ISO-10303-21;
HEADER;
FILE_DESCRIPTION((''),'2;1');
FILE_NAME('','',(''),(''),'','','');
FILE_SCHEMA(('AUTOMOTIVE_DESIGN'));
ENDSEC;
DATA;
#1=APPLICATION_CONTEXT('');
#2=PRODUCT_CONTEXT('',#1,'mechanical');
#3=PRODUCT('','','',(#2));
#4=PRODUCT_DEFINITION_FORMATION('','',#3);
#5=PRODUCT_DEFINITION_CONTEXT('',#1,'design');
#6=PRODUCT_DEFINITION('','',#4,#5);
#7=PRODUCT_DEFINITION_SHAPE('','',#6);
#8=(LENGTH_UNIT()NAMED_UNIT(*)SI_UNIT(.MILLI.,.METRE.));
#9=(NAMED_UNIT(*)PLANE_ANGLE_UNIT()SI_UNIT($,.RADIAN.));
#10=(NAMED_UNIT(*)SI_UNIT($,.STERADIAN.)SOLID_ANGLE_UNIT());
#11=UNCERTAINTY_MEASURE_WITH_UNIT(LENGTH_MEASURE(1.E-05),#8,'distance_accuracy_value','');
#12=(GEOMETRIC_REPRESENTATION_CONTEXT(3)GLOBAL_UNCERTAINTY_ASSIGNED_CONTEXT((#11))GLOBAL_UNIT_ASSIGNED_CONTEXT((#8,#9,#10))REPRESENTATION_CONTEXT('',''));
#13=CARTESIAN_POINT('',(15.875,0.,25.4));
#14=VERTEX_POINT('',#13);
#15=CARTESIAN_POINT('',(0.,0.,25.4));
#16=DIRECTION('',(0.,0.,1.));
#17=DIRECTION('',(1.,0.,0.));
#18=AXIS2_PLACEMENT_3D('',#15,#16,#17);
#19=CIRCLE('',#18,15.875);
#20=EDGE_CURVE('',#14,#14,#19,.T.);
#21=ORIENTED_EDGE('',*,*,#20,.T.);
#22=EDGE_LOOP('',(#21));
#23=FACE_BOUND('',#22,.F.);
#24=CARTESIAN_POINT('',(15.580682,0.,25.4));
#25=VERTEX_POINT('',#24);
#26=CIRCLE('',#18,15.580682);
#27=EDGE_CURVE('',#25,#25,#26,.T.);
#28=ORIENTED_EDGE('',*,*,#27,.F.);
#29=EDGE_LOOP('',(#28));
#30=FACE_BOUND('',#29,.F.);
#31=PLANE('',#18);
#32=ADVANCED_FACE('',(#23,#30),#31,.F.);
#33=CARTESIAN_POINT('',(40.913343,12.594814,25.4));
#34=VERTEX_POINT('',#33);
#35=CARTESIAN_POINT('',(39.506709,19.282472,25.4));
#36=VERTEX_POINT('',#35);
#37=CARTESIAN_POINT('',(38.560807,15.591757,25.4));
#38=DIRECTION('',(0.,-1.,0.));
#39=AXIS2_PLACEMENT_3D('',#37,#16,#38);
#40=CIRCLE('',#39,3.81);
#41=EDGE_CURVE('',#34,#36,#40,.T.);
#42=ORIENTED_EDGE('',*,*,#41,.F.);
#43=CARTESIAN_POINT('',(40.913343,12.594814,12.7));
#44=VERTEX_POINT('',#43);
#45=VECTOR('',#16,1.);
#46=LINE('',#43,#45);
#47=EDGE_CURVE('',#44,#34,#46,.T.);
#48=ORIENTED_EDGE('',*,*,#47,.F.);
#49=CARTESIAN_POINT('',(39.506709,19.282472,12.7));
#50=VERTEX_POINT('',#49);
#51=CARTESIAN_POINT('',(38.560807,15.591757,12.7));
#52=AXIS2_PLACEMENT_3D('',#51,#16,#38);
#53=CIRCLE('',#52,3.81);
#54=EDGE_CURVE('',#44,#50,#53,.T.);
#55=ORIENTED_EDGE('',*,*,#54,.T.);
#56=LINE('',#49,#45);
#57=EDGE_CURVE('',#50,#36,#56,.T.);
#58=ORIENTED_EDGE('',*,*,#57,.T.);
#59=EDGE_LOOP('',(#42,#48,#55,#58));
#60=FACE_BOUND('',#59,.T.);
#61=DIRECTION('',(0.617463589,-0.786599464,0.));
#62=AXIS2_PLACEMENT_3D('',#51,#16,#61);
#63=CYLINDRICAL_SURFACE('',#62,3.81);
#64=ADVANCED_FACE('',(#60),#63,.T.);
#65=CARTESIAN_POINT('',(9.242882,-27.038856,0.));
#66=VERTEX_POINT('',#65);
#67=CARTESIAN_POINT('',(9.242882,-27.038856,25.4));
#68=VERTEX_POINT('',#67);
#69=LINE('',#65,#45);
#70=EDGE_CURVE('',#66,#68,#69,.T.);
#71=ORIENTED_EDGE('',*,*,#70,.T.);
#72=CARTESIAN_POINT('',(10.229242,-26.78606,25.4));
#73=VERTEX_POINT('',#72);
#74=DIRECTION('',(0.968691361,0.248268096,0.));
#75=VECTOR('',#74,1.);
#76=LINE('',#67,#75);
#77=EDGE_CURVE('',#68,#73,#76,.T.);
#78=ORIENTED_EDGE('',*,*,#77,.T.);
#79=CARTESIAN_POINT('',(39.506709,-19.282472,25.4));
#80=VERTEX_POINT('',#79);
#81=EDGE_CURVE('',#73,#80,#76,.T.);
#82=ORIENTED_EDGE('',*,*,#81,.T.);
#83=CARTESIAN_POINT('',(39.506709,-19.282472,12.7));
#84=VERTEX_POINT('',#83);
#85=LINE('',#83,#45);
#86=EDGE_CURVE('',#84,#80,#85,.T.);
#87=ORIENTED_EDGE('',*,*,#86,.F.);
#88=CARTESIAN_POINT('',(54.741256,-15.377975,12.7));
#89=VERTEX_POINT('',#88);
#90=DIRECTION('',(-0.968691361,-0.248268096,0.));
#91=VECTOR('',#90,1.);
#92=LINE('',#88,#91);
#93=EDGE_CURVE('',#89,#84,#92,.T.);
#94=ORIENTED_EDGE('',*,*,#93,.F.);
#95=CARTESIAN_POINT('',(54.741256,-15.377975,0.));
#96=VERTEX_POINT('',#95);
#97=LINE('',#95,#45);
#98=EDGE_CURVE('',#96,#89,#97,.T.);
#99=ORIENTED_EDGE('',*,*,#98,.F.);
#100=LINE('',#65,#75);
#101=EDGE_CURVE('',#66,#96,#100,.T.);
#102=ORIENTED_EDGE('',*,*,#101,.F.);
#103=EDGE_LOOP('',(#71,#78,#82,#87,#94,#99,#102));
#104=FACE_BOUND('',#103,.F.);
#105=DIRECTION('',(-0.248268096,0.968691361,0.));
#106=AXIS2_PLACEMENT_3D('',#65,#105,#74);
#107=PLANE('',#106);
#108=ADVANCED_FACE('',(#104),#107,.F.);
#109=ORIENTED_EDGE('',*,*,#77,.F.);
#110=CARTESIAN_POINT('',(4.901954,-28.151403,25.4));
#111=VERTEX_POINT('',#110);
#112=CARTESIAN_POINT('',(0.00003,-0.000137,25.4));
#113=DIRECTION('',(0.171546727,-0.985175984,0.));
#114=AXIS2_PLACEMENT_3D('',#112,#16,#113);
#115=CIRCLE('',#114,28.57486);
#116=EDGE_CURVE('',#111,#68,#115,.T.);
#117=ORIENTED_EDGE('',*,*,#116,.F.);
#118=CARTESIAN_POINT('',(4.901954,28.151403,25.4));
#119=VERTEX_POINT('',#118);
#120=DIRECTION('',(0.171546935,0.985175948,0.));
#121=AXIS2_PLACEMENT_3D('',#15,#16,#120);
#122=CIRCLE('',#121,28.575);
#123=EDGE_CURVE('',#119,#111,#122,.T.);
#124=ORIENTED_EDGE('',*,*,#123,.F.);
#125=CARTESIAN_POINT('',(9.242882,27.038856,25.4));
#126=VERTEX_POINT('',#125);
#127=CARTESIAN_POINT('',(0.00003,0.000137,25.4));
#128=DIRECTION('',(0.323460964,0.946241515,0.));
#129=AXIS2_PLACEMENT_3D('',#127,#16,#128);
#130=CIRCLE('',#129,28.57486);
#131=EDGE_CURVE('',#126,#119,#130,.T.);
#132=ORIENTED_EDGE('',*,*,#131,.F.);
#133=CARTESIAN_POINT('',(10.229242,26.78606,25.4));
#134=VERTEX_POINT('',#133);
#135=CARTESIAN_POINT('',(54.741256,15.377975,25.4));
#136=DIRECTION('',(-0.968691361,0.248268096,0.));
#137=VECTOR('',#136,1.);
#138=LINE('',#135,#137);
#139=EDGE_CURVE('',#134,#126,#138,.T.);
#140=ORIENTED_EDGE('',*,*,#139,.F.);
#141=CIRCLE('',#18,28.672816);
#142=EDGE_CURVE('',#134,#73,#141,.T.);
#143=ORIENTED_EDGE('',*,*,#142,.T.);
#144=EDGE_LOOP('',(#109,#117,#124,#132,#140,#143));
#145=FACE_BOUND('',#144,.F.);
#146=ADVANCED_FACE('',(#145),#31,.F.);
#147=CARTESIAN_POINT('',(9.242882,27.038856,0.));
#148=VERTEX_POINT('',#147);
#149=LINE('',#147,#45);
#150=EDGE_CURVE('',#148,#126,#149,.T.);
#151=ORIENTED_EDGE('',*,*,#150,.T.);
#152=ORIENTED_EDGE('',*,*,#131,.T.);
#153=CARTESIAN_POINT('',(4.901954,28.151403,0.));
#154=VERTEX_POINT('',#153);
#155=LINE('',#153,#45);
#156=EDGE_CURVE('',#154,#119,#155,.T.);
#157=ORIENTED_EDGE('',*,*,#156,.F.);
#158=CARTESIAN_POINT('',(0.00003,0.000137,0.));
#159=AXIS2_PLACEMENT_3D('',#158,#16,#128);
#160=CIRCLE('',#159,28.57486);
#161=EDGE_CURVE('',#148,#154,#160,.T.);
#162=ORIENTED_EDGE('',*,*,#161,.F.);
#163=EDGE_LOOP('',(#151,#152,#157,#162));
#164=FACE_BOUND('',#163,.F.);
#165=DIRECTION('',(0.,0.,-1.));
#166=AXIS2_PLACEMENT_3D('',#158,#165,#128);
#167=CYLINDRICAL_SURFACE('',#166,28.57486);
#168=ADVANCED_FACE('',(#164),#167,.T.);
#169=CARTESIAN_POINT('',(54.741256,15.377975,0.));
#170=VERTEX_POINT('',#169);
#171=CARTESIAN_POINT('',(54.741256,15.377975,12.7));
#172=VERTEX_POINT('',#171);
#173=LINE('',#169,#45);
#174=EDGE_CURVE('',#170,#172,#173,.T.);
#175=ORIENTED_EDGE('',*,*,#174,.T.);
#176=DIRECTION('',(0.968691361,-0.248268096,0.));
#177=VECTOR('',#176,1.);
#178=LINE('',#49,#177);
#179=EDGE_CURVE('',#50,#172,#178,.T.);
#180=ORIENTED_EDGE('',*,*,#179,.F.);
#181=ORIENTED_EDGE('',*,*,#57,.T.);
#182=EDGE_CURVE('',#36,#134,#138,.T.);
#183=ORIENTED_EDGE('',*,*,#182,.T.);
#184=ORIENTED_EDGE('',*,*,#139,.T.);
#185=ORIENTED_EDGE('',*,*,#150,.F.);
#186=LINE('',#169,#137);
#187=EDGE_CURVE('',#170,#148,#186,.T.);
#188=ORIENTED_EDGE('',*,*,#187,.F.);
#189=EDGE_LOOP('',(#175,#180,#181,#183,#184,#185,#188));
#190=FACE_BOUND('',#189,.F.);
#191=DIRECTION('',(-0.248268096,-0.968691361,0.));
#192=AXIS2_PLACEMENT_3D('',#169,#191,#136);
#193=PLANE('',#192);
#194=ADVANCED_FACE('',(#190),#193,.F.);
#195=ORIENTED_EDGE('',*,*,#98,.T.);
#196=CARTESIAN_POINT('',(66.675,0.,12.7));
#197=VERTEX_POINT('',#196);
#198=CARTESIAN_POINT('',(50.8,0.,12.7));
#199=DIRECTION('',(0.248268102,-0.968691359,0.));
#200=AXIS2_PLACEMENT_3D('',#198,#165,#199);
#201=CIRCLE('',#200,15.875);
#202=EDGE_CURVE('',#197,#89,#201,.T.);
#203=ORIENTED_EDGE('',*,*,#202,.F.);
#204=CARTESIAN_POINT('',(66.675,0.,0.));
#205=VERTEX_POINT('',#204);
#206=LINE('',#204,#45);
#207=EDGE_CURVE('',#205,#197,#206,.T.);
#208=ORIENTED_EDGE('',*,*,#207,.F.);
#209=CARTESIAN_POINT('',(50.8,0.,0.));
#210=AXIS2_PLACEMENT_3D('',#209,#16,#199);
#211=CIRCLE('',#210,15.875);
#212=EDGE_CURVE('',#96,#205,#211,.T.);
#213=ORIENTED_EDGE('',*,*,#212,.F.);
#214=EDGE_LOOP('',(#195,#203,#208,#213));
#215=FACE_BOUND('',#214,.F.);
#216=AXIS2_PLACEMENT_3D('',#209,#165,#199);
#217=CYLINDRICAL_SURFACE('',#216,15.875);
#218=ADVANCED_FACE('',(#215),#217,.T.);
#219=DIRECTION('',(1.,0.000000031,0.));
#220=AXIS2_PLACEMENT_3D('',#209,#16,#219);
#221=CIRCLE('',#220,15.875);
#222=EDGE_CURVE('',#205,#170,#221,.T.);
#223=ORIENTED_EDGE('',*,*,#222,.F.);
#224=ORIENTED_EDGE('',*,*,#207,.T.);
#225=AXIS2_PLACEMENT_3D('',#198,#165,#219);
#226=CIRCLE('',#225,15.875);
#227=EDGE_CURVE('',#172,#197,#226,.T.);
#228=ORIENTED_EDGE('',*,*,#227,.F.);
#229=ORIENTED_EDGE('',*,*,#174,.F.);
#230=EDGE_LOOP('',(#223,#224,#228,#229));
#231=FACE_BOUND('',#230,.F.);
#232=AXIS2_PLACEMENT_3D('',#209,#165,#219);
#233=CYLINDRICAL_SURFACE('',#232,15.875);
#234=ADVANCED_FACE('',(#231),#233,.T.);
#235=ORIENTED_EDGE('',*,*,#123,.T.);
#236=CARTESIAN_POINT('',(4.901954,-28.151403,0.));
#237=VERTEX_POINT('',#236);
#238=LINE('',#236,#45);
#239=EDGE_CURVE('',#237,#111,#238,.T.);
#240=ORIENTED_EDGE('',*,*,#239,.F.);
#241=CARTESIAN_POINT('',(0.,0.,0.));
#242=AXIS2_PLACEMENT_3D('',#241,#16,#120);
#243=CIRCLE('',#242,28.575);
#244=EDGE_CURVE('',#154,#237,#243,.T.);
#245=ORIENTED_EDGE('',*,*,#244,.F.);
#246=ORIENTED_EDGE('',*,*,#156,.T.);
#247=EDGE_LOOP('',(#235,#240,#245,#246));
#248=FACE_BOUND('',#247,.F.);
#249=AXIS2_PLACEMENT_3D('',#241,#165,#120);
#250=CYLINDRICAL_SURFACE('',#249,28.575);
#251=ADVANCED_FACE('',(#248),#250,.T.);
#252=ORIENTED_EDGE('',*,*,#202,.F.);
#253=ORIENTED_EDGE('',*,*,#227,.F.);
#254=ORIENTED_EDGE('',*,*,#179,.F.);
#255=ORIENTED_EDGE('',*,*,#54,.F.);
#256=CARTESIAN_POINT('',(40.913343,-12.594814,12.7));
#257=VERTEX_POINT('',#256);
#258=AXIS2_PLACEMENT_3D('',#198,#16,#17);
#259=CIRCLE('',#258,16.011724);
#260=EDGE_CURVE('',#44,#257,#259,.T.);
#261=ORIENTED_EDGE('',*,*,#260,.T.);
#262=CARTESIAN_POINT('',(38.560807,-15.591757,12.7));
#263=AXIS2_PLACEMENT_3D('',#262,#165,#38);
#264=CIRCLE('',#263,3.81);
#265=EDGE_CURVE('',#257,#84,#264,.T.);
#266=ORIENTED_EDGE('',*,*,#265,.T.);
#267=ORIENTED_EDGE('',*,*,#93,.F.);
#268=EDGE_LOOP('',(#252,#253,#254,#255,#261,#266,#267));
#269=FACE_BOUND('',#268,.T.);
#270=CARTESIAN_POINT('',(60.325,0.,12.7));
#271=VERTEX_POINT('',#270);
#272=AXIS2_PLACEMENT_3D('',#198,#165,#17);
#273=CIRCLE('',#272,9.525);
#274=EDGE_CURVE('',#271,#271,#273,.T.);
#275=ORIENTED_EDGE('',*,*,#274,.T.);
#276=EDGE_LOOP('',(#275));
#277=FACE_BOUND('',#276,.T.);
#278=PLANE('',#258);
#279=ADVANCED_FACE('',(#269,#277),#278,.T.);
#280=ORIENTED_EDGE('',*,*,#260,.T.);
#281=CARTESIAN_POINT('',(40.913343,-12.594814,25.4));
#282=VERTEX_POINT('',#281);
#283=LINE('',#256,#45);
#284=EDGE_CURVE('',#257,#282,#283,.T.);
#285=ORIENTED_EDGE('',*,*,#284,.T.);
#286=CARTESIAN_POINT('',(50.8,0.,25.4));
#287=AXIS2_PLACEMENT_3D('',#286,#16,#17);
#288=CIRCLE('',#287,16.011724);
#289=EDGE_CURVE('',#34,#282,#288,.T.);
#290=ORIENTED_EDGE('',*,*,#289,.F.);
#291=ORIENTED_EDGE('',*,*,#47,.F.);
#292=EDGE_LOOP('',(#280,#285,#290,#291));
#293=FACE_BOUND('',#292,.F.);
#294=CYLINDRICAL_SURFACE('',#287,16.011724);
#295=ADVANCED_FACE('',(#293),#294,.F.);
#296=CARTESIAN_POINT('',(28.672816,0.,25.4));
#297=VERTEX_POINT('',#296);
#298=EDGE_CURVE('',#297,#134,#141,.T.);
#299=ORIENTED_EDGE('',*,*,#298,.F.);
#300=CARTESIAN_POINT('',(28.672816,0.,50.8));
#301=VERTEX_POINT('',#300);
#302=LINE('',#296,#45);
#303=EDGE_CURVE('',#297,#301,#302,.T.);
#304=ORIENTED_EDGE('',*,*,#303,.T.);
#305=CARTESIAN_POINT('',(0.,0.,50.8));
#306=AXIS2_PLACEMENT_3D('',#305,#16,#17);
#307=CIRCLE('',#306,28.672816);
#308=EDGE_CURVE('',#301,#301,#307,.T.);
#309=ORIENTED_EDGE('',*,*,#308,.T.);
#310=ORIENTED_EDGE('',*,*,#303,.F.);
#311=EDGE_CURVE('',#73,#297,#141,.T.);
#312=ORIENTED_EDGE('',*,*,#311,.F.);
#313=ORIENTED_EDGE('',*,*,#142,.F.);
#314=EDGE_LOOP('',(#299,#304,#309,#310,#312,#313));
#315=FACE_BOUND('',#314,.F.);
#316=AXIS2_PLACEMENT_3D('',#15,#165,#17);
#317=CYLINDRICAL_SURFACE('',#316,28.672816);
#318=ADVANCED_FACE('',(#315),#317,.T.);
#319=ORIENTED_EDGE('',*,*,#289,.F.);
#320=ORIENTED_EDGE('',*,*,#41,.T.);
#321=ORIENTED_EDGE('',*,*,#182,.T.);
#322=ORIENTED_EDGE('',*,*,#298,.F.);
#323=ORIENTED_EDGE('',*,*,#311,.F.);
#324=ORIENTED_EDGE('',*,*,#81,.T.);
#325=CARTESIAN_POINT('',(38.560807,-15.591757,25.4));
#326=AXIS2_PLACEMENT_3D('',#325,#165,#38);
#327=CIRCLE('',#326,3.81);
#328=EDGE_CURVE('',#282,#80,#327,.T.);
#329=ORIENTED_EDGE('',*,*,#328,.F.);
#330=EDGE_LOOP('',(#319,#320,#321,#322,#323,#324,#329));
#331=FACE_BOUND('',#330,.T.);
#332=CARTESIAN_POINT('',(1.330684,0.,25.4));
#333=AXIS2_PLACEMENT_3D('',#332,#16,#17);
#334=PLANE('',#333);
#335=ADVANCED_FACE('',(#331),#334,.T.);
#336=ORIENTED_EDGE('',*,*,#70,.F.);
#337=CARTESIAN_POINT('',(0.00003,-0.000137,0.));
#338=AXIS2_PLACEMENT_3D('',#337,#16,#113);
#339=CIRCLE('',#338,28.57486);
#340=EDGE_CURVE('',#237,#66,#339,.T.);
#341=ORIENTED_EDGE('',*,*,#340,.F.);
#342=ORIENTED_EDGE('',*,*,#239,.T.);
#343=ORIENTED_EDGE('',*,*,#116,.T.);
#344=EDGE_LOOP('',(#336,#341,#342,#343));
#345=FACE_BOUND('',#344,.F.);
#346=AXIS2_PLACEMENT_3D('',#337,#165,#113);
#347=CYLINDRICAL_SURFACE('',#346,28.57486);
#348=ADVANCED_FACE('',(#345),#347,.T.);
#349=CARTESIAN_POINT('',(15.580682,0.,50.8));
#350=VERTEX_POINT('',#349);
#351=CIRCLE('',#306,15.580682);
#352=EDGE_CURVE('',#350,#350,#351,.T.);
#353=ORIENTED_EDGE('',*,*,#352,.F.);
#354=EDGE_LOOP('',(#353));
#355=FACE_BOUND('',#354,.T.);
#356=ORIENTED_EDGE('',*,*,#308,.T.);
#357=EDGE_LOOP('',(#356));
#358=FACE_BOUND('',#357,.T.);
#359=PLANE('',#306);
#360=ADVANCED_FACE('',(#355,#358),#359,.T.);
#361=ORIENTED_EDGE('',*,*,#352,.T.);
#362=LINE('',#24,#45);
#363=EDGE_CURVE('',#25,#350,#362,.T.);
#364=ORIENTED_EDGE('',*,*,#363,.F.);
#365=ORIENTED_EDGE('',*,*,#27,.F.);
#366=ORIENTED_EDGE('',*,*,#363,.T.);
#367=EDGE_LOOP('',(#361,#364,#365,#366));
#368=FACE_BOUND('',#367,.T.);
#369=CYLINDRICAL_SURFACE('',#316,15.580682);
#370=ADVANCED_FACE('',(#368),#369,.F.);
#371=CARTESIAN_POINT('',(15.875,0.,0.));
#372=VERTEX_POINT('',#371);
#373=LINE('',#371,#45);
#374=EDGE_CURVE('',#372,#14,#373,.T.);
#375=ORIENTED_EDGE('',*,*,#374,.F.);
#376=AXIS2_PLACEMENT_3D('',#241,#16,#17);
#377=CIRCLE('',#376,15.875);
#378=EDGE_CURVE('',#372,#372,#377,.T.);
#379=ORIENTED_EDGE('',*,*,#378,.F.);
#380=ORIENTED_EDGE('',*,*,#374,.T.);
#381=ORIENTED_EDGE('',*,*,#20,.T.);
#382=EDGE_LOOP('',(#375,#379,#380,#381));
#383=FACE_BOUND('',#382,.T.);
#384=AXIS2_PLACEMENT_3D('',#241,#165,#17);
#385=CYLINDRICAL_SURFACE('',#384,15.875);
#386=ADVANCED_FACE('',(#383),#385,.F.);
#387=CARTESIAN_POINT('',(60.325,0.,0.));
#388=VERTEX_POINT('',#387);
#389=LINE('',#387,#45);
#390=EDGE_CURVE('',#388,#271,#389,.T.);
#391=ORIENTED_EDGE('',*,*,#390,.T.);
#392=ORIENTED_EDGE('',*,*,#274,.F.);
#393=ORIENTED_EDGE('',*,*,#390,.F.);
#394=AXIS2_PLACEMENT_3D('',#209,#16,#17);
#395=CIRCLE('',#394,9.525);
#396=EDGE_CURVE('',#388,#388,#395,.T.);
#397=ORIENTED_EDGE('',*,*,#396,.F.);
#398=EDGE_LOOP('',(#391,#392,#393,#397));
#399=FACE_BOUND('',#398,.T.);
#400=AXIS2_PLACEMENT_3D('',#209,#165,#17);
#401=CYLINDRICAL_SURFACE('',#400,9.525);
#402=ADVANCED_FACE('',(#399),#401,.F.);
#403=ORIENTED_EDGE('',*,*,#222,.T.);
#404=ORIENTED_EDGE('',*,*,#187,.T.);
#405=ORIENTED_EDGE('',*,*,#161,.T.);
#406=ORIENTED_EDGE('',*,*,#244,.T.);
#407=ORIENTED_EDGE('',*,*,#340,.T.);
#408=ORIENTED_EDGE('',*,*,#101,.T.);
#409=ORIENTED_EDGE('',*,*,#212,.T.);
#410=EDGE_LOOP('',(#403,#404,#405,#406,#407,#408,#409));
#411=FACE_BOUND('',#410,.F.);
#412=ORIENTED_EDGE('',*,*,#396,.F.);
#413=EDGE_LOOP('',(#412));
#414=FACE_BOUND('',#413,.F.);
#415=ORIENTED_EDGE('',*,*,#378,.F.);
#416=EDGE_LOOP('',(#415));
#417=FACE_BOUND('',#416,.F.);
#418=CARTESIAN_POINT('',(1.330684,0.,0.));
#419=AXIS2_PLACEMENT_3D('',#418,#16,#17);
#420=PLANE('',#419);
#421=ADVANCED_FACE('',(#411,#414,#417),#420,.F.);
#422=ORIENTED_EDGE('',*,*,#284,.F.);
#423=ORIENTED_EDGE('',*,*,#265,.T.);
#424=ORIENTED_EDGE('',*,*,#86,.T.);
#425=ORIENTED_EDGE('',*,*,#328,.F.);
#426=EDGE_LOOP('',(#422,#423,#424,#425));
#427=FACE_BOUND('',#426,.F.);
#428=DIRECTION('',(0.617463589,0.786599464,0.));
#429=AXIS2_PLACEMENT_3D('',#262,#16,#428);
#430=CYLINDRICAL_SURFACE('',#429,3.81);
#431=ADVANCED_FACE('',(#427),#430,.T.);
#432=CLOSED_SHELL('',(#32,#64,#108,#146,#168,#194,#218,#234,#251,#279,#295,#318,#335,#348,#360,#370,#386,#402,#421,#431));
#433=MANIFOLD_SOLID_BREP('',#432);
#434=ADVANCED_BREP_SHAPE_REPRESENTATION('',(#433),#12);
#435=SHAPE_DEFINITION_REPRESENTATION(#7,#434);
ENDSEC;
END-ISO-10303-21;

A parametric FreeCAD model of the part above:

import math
import FreeCAD as App
import Part
import Sketcher
Q = App.Units.Quantity


def edges_at(feature, points):
    """Names of the edges that pass closest to the given points."""
    edges = feature.Shape.Edges
    near = lambda p: min(range(len(edges)), key=lambda i: edges[i].distToShape(Part.Vertex(*p))[0])
    return sorted({f"Edge{near(p) + 1}" for p in points})

doc = App.newDocument("Part")
body = doc.addObject("PartDesign::Body", "Body")

sketch1 = body.newObject("Sketcher::SketchObject", "Sketch")
sketch1.AttachmentSupport = (doc.getObject("XY_Plane"), [""])
sketch1.MapMode = "FlatFace"
sketch1.addGeometry(Part.ArcOfCircle(Part.Circle(App.Vector(0, 0, 0), App.Vector(0, 0, 1), 28.6), math.radians(71.13), math.radians(80.12)), False)
sketch1.addGeometry(Part.ArcOfCircle(Part.Circle(App.Vector(0, 0, 0), App.Vector(0, 0, 1), 28.6), math.radians(80), math.radians(280)), False)
sketch1.addGeometry(Part.ArcOfCircle(Part.Circle(App.Vector(0, 0, 0), App.Vector(0, 0, 1), 28.6), math.radians(-80.12), math.radians(-71.13)), False)
sketch1.addGeometry(Part.LineSegment(App.Vector(9.2, -27, 0), App.Vector(54.7, -15.4, 0)), False)
sketch1.addGeometry(Part.ArcOfCircle(Part.Circle(App.Vector(50.8, 0, 0), App.Vector(0, 0, 1), 15.9), math.radians(-76), math.radians(0)), False)
sketch1.addGeometry(Part.ArcOfCircle(Part.Circle(App.Vector(50.8, 0, 0), App.Vector(0, 0, 1), 15.9), math.radians(0), math.radians(76)), False)
sketch1.addGeometry(Part.LineSegment(App.Vector(54.7, 15.4, 0), App.Vector(9.2, 27, 0)), False)
sketch1.addGeometry(Part.Circle(App.Vector(0, 0, 0), App.Vector(0, 0, 1), 15.9), False)
sketch1.addGeometry(Part.Circle(App.Vector(50.8, 0, 0), App.Vector(0, 0, 1), 9.5), False)
sketch1.addConstraint(Sketcher.Constraint("Tangent", 0, 2, 1, 1))
sketch1.addConstraint(Sketcher.Constraint("Tangent", 1, 2, 2, 1))
sketch1.addConstraint(Sketcher.Constraint("Coincident", 2, 2, 3, 1))
sketch1.addConstraint(Sketcher.Constraint("Tangent", 3, 2, 4, 1))
sketch1.addConstraint(Sketcher.Constraint("Tangent", 4, 2, 5, 1))
sketch1.addConstraint(Sketcher.Constraint("Tangent", 5, 2, 6, 1))
sketch1.addConstraint(Sketcher.Constraint("Coincident", 6, 2, 0, 1))
sketch1.addConstraint(Sketcher.Constraint("Coincident", 1, 3, -1, 1))
sketch1.addConstraint(Sketcher.Constraint("Coincident", 7, 3, -1, 1))
sketch1.addConstraint(Sketcher.Constraint("Coincident", 8, 3, 4, 3))
sketch1.addConstraint(Sketcher.Constraint("Equal", 0, 2))
sketch1.addConstraint(Sketcher.Constraint("Equal", 4, 5))
sketch1.addConstraint(Sketcher.Constraint("Equal", 5, 7))
sketch1.addConstraint(Sketcher.Constraint("Symmetric", 3, 2, 5, 2, -1))
sketch1.addConstraint(Sketcher.Constraint("PointOnObject", 4, 2, -1))
sketch1.addConstraint(Sketcher.Constraint("Vertical", 0, 2, 1, 2))
sketch1.addConstraint(Sketcher.Constraint("Diameter", 7, Q("1.25 in")))
sketch1.addConstraint(Sketcher.Constraint("Diameter", 8, Q("0.75 in")))
sketch1.addConstraint(Sketcher.Constraint("DistanceX", -1, 1, 4, 3, Q("2 in")))
sketch1.addConstraint(Sketcher.Constraint("Radius", 1, Q("1.125 in")))
sketch1.addConstraint(Sketcher.Constraint("Radius", 0, 28.57486))
sketch1.addConstraint(Sketcher.Constraint("DistanceX", -1, 1, 2, 2, 9.242882))
sketch1.addConstraint(Sketcher.Constraint("DistanceY", 2, 3, 0, 2, 28.15154))
pad1 = body.newObject("PartDesign::Pad", "Pad")
pad1.Profile = sketch1
pad1.Length = Q("1 in")

sketch2 = body.newObject("Sketcher::SketchObject", "Sketch001")
sketch2.AttachmentSupport = (doc.getObject("XY_Plane"), [""])
sketch2.MapMode = "FlatFace"
sketch2.AttachmentOffset = App.Placement(App.Vector(0, 0, 1 * 25.4), App.Rotation())
sketch2.addGeometry(Part.Circle(App.Vector(0, 0, 0), App.Vector(0, 0, 1), 29), False)
sketch2.addGeometry(Part.Circle(App.Vector(0, 0, 0), App.Vector(0, 0, 1), 16), False)
sketch2.addConstraint(Sketcher.Constraint("Coincident", 0, 3, -1, 1))
sketch2.addConstraint(Sketcher.Constraint("Coincident", 1, 3, -1, 1))
sketch2.addConstraint(Sketcher.Constraint("Diameter", 0, 57.345632))
sketch2.addConstraint(Sketcher.Constraint("Diameter", 1, 31.161364))
pad2 = body.newObject("PartDesign::Pad", "Pad001")
pad2.Profile = sketch2
pad2.Length = Q("1 in")

sketch3 = body.newObject("Sketcher::SketchObject", "Sketch002")
sketch3.AttachmentSupport = (doc.getObject("XY_Plane"), [""])
sketch3.MapMode = "FlatFace"
sketch3.AttachmentOffset = App.Placement(App.Vector(0, 0, 1 * 25.4), App.Rotation())
sketch3.addGeometry(Part.Circle(App.Vector(51, 0, 0), App.Vector(0, 0, 1), 16), False)
sketch3.addGeometry(Part.Circle(App.Vector(51, 0, 0), App.Vector(0, 0, 1), 9), False)
sketch3.addConstraint(Sketcher.Constraint("Coincident", 1, 3, 0, 3))
sketch3.addConstraint(Sketcher.Constraint("PointOnObject", 0, 3, -1))
sketch3.addConstraint(Sketcher.Constraint("DistanceX", -1, 1, 0, 3, Q("2 in")))
sketch3.addConstraint(Sketcher.Constraint("Diameter", 0, 32.023448))
sketch3.addConstraint(Sketcher.Constraint("Diameter", 1, 18.905272))
pocket1 = body.newObject("PartDesign::Pocket", "Pocket")
pocket1.Profile = sketch3
pocket1.Length = Q("0.5 in")
doc.recompute()

fillet = body.newObject("PartDesign::Fillet", "Fillet")
fillet.Base = (pocket1, edges_at(pocket1, [(52.719, -15.896, 19.05), (52.719, 15.896, 19.05)]))
fillet.Radius = Q("0.15 in")

doc.recompute()
